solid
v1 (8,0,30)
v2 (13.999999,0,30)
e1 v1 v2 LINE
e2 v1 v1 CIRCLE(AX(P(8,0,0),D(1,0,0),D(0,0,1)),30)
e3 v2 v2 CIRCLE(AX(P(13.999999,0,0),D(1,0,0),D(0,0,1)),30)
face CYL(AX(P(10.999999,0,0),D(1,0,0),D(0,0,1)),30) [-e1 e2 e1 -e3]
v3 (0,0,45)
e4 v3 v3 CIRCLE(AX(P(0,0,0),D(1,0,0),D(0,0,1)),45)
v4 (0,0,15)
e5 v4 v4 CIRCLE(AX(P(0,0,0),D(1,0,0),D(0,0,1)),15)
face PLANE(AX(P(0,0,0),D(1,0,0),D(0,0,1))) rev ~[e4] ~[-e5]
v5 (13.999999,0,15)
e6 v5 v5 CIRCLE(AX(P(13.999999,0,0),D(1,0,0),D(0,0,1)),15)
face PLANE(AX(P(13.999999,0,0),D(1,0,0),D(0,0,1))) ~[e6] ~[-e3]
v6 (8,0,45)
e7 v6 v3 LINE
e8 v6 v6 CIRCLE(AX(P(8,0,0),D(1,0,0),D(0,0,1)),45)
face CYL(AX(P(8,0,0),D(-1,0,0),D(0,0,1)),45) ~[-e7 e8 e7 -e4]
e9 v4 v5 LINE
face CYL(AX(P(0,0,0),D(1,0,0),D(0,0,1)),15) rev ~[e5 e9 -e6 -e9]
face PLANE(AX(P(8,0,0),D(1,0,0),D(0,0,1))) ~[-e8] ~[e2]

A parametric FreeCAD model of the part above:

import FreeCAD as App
import Part
import Sketcher
Q = App.Units.Quantity


def add_polygon(sketch, points):
    """Adds a closed chain of lines whose ends are joined by coincident constraints."""
    first, n = sketch.GeometryCount, len(points)
    for a, b in zip(points, points[1:] + points[:1]):
        sketch.addGeometry(Part.LineSegment(App.Vector(*a, 0), App.Vector(*b, 0)), False)
    for i in range(n):
        sketch.addConstraint(Sketcher.Constraint("Coincident", first + i, 2, first + (i + 1) % n, 1))

doc = App.newDocument("Part")
body = doc.addObject("PartDesign::Body", "Body")

# Sketch on XZ plane
sketch1 = body.newObject("Sketcher::SketchObject", "Sketch")
sketch1.AttachmentSupport = (doc.getObject("XZ_Plane"), [""])
sketch1.MapMode = "FlatFace"
add_polygon(sketch1, [(8, 30), (8, 45), (0, 45), (0, 15), (14, 15), (14, 30)])  # lines 0-5
sketch1.addConstraint([
    Sketcher.Constraint("Vertical", 0),
    Sketcher.Constraint("Horizontal", 1),
    Sketcher.Constraint("Vertical", 2),
    Sketcher.Constraint("Horizontal", 3),
    Sketcher.Constraint("Vertical", 4),
    Sketcher.Constraint("Horizontal", 5),
    Sketcher.Constraint("PointOnObject", 1, 2, -2),
    Sketcher.Constraint("Equal", 0, 4),
    Sketcher.Constraint("DistanceX", 1, 2, 1, 1, Q("8 mm")),
    Sketcher.Constraint("DistanceX", 3, 1, 3, 2, Q("13.999999 mm")),
    Sketcher.Constraint("DistanceY", 0, 1, 0, 2, Q("15 mm")),
    Sketcher.Constraint("DistanceY", -1, 1, 0, 2, Q("45 mm")),
])
revolution = body.newObject("PartDesign::Revolution", "Revolution")
revolution.Profile = sketch1
revolution.ReferenceAxis = (sketch1, ["H_Axis"])
revolution.Angle = 360

doc.recompute()
